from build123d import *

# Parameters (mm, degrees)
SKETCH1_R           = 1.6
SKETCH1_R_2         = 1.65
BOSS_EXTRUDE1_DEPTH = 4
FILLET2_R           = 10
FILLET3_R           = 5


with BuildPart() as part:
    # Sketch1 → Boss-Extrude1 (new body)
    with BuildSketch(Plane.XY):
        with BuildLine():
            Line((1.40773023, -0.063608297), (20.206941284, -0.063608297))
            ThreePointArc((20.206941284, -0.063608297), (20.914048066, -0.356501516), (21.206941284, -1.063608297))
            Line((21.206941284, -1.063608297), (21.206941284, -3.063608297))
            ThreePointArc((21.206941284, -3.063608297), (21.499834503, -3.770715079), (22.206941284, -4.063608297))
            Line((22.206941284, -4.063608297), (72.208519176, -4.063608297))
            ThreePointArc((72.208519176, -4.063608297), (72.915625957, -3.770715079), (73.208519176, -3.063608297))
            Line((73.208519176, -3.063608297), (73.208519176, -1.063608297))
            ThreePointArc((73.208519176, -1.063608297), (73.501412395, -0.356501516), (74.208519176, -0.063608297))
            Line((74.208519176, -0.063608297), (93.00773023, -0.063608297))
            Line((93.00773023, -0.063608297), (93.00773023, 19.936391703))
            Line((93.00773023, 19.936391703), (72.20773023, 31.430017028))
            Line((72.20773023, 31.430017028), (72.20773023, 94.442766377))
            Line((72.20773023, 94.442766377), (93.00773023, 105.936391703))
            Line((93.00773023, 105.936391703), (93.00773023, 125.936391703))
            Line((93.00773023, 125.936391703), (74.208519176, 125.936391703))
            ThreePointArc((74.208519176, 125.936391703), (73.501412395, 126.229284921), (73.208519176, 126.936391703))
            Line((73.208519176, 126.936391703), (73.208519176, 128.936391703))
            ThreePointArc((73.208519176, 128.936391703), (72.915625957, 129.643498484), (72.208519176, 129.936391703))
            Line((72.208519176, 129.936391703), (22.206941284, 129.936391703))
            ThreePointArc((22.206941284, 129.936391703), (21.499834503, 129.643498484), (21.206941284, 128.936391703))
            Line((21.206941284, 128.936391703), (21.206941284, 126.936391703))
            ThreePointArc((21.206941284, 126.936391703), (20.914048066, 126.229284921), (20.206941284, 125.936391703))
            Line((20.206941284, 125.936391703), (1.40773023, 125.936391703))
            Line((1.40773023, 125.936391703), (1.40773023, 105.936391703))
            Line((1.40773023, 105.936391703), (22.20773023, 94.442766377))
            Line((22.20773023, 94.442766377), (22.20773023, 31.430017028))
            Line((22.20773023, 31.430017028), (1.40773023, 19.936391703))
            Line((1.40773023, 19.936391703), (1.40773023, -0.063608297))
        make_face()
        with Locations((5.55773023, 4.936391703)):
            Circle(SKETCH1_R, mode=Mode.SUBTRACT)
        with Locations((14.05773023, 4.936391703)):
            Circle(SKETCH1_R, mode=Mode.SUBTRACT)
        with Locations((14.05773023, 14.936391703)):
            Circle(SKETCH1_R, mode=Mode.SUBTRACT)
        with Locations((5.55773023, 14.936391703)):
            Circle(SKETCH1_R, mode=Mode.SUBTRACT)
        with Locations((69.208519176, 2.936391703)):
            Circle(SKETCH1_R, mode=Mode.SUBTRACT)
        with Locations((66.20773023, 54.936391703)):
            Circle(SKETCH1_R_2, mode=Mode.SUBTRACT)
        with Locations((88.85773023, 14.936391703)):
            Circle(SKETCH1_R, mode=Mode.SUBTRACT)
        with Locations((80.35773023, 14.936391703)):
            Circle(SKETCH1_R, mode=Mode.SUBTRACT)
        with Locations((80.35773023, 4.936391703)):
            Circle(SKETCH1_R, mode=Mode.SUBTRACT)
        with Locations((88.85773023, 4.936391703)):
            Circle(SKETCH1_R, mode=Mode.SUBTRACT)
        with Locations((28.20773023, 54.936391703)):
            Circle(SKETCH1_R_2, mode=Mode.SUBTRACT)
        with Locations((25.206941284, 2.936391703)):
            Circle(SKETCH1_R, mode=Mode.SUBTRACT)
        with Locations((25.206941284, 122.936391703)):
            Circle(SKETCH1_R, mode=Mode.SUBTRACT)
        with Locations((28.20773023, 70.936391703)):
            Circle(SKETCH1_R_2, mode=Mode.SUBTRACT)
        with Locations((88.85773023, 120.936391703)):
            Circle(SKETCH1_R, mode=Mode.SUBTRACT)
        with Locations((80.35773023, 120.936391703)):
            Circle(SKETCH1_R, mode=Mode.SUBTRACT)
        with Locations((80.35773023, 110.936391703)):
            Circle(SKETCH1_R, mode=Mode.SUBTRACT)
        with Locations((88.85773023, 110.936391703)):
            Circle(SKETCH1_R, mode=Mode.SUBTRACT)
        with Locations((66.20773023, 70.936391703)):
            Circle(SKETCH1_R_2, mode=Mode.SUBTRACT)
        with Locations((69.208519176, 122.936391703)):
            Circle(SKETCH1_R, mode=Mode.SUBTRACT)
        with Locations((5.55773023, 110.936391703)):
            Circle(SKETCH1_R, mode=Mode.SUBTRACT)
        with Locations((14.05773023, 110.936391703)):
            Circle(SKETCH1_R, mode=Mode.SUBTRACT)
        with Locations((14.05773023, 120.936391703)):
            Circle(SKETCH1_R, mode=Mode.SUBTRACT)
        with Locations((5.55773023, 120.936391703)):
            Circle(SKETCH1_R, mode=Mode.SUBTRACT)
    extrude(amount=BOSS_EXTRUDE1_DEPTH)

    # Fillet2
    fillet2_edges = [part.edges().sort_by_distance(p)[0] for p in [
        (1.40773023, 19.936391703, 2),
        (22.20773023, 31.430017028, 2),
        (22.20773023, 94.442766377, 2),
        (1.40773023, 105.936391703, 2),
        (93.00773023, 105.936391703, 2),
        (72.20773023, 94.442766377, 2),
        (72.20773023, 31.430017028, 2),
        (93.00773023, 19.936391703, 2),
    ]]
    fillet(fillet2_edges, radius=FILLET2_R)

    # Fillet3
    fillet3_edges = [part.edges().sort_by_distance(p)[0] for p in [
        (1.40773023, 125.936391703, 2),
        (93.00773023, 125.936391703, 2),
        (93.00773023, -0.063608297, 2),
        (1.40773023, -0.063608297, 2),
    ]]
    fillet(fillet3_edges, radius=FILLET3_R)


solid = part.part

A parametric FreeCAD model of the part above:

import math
import FreeCAD as App
import Part
import Sketcher

V = App.Vector
Q = App.Units.Quantity


def edges_at(feature, points):
    """Names of the edges that pass closest to the given points."""
    edges = feature.Shape.Edges
    near = lambda p: min(range(len(edges)), key=lambda i: edges[i].distToShape(Part.Vertex(*p))[0])
    return sorted({f"Edge{near(p) + 1}" for p in points})

doc = App.newDocument("Part")
body = doc.addObject("PartDesign::Body", "Body")

sketch1 = doc.addObject("Sketcher::SketchObject", "Sketch")
body.addObject(sketch1)
sketch1.AttachmentSupport = (doc.XY_Plane, [""])
sketch1.MapMode = "FlatFace"
sketch1.addGeometry(Part.LineSegment(V(1.4, -0.1, 0), V(20.2, -0.1, 0)), False)
sketch1.addGeometry(Part.ArcOfCircle(Part.Circle(V(20.2, -1.1, 0), V(0, 0, 1), 1), math.radians(0), math.radians(90)), False)
sketch1.addGeometry(Part.LineSegment(V(21.2, -1.1, 0), V(21.2, -3.1, 0)), False)
sketch1.addGeometry(Part.ArcOfCircle(Part.Circle(V(22.2, -3.1, 0), V(0, 0, 1), 1), math.radians(180), math.radians(270)), False)
sketch1.addGeometry(Part.LineSegment(V(22.2, -4.1, 0), V(72.2, -4.1, 0)), False)
sketch1.addGeometry(Part.ArcOfCircle(Part.Circle(V(72.2, -3.1, 0), V(0, 0, 1), 1), math.radians(-90), math.radians(0)), False)
sketch1.addGeometry(Part.LineSegment(V(73.2, -3.1, 0), V(73.2, -1.1, 0)), False)
sketch1.addGeometry(Part.ArcOfCircle(Part.Circle(V(74.2, -1.1, 0), V(0, 0, 1), 1), math.radians(90), math.radians(180)), False)
sketch1.addGeometry(Part.LineSegment(V(74.2, -0.1, 0), V(93, -0.1, 0)), False)
sketch1.addGeometry(Part.LineSegment(V(93, -0.1, 0), V(93, 19.9, 0)), False)
sketch1.addGeometry(Part.LineSegment(V(93, 19.9, 0), V(72.2, 31.4, 0)), False)
sketch1.addGeometry(Part.LineSegment(V(72.2, 31.4, 0), V(72.2, 94.4, 0)), False)
sketch1.addGeometry(Part.LineSegment(V(72.2, 94.4, 0), V(93, 105.9, 0)), False)
sketch1.addGeometry(Part.LineSegment(V(93, 105.9, 0), V(93, 125.9, 0)), False)
sketch1.addGeometry(Part.LineSegment(V(93, 125.9, 0), V(74.2, 125.9, 0)), False)
sketch1.addGeometry(Part.ArcOfCircle(Part.Circle(V(74.2, 126.9, 0), V(0, 0, 1), 1), math.radians(180), math.radians(270)), False)
sketch1.addGeometry(Part.LineSegment(V(73.2, 126.9, 0), V(73.2, 128.9, 0)), False)
sketch1.addGeometry(Part.ArcOfCircle(Part.Circle(V(72.2, 128.9, 0), V(0, 0, 1), 1), math.radians(0), math.radians(90)), False)
sketch1.addGeometry(Part.LineSegment(V(72.2, 129.9, 0), V(22.2, 129.9, 0)), False)
sketch1.addGeometry(Part.ArcOfCircle(Part.Circle(V(22.2, 128.9, 0), V(0, 0, 1), 1), math.radians(90), math.radians(180)), False)
sketch1.addGeometry(Part.LineSegment(V(21.2, 128.9, 0), V(21.2, 126.9, 0)), False)
sketch1.addGeometry(Part.ArcOfCircle(Part.Circle(V(20.2, 126.9, 0), V(0, 0, 1), 1), math.radians(-90), math.radians(0)), False)
sketch1.addGeometry(Part.LineSegment(V(20.2, 125.9, 0), V(1.4, 125.9, 0)), False)
sketch1.addGeometry(Part.LineSegment(V(1.4, 125.9, 0), V(1.4, 105.9, 0)), False)
sketch1.addGeometry(Part.LineSegment(V(1.4, 105.9, 0), V(22.2, 94.4, 0)), False)
sketch1.addGeometry(Part.LineSegment(V(22.2, 94.4, 0), V(22.2, 31.4, 0)), False)
sketch1.addGeometry(Part.LineSegment(V(22.2, 31.4, 0), V(1.4, 19.9, 0)), False)
sketch1.addGeometry(Part.LineSegment(V(1.4, 19.9, 0), V(1.4, -0.1, 0)), False)
sketch1.addGeometry(Part.Circle(V(5.6, 4.9, 0), V(0, 0, 1), 1.6), False)
sketch1.addGeometry(Part.Circle(V(14.1, 4.9, 0), V(0, 0, 1), 1.6), False)
sketch1.addGeometry(Part.Circle(V(5.6, 14.9, 0), V(0, 0, 1), 1.6), False)
sketch1.addGeometry(Part.Circle(V(14.1, 14.9, 0), V(0, 0, 1), 1.6), False)
sketch1.addGeometry(Part.Circle(V(25.2, 2.9, 0), V(0, 0, 1), 1.6), False)
sketch1.addGeometry(Part.Circle(V(28.2, 54.9, 0), V(0, 0, 1), 1.6), False)
sketch1.addGeometry(Part.Circle(V(69.2, 2.9, 0), V(0, 0, 1), 1.6), False)
sketch1.addGeometry(Part.Circle(V(80.4, 4.9, 0), V(0, 0, 1), 1.6), False)
sketch1.addGeometry(Part.Circle(V(88.9, 4.9, 0), V(0, 0, 1), 1.6), False)
sketch1.addGeometry(Part.Circle(V(80.4, 14.9, 0), V(0, 0, 1), 1.6), False)
sketch1.addGeometry(Part.Circle(V(88.9, 14.9, 0), V(0, 0, 1), 1.6), False)
sketch1.addGeometry(Part.Circle(V(66.2, 54.9, 0), V(0, 0, 1), 1.6), False)
sketch1.addGeometry(Part.Circle(V(28.2, 70.9, 0), V(0, 0, 1), 1.6), False)
sketch1.addGeometry(Part.Circle(V(5.6, 110.9, 0), V(0, 0, 1), 1.6), False)
sketch1.addGeometry(Part.Circle(V(14.1, 110.9, 0), V(0, 0, 1), 1.6), False)
sketch1.addGeometry(Part.Circle(V(5.6, 120.9, 0), V(0, 0, 1), 1.6), False)
sketch1.addGeometry(Part.Circle(V(14.1, 120.9, 0), V(0, 0, 1), 1.6), False)
sketch1.addGeometry(Part.Circle(V(25.2, 122.9, 0), V(0, 0, 1), 1.6), False)
sketch1.addGeometry(Part.Circle(V(66.2, 70.9, 0), V(0, 0, 1), 1.6), False)
sketch1.addGeometry(Part.Circle(V(69.2, 122.9, 0), V(0, 0, 1), 1.6), False)
sketch1.addGeometry(Part.Circle(V(80.4, 110.9, 0), V(0, 0, 1), 1.6), False)
sketch1.addGeometry(Part.Circle(V(88.9, 110.9, 0), V(0, 0, 1), 1.6), False)
sketch1.addGeometry(Part.Circle(V(80.4, 120.9, 0), V(0, 0, 1), 1.6), False)
sketch1.addGeometry(Part.Circle(V(88.9, 120.9, 0), V(0, 0, 1), 1.6), False)
sketch1.addConstraint(Sketcher.Constraint("Tangent", 0, 2, 1, 2))
sketch1.addConstraint(Sketcher.Constraint("Tangent", 1, 1, 2, 1))
sketch1.addConstraint(Sketcher.Constraint("Tangent", 2, 2, 3, 1))
sketch1.addConstraint(Sketcher.Constraint("Tangent", 3, 2, 4, 1))
sketch1.addConstraint(Sketcher.Constraint("Tangent", 4, 2, 5, 1))
sketch1.addConstraint(Sketcher.Constraint("Tangent", 5, 2, 6, 1))
sketch1.addConstraint(Sketcher.Constraint("Tangent", 6, 2, 7, 2))
sketch1.addConstraint(Sketcher.Constraint("Tangent", 7, 1, 8, 1))
sketch1.addConstraint(Sketcher.Constraint("Coincident", 8, 2, 9, 1))
sketch1.addConstraint(Sketcher.Constraint("Coincident", 9, 2, 10, 1))
sketch1.addConstraint(Sketcher.Constraint("Coincident", 10, 2, 11, 1))
sketch1.addConstraint(Sketcher.Constraint("Coincident", 11, 2, 12, 1))
sketch1.addConstraint(Sketcher.Constraint("Coincident", 12, 2, 13, 1))
sketch1.addConstraint(Sketcher.Constraint("Coincident", 13, 2, 14, 1))
sketch1.addConstraint(Sketcher.Constraint("Tangent", 14, 2, 15, 2))
sketch1.addConstraint(Sketcher.Constraint("Tangent", 15, 1, 16, 1))
sketch1.addConstraint(Sketcher.Constraint("Tangent", 16, 2, 17, 1))
sketch1.addConstraint(Sketcher.Constraint("Tangent", 17, 2, 18, 1))
sketch1.addConstraint(Sketcher.Constraint("Tangent", 18, 2, 19, 1))
sketch1.addConstraint(Sketcher.Constraint("Tangent", 19, 2, 20, 1))
sketch1.addConstraint(Sketcher.Constraint("Tangent", 20, 2, 21, 2))
sketch1.addConstraint(Sketcher.Constraint("Tangent", 21, 1, 22, 1))
sketch1.addConstraint(Sketcher.Constraint("Coincident", 22, 2, 23, 1))
sketch1.addConstraint(Sketcher.Constraint("Coincident", 23, 2, 24, 1))
sketch1.addConstraint(Sketcher.Constraint("Coincident", 24, 2, 25, 1))
sketch1.addConstraint(Sketcher.Constraint("Coincident", 25, 2, 26, 1))
sketch1.addConstraint(Sketcher.Constraint("Coincident", 26, 2, 27, 1))
sketch1.addConstraint(Sketcher.Constraint("Coincident", 27, 2, 0, 1))
sketch1.addConstraint(Sketcher.Constraint("Horizontal", 0))
sketch1.addConstraint(Sketcher.Constraint("Vertical", 2))
sketch1.addConstraint(Sketcher.Constraint("Horizontal", 4))
sketch1.addConstraint(Sketcher.Constraint("Vertical", 6))
sketch1.addConstraint(Sketcher.Constraint("Horizontal", 8))
sketch1.addConstraint(Sketcher.Constraint("Vertical", 9))
sketch1.addConstraint(Sketcher.Constraint("Vertical", 11))
sketch1.addConstraint(Sketcher.Constraint("Vertical", 13))
sketch1.addConstraint(Sketcher.Constraint("Horizontal", 14))
sketch1.addConstraint(Sketcher.Constraint("Vertical", 16))
sketch1.addConstraint(Sketcher.Constraint("Horizontal", 18))
sketch1.addConstraint(Sketcher.Constraint("Vertical", 20))
sketch1.addConstraint(Sketcher.Constraint("Horizontal", 22))
sketch1.addConstraint(Sketcher.Constraint("Vertical", 23))
sketch1.addConstraint(Sketcher.Constraint("Vertical", 25))
sketch1.addConstraint(Sketcher.Constraint("Vertical", 27))
sketch1.addConstraint(Sketcher.Constraint("Equal", 1, 3))
sketch1.addConstraint(Sketcher.Constraint("Equal", 3, 5))
sketch1.addConstraint(Sketcher.Constraint("Equal", 5, 7))
sketch1.addConstraint(Sketcher.Constraint("Equal", 7, 15))
sketch1.addConstraint(Sketcher.Constraint("Equal", 15, 17))
sketch1.addConstraint(Sketcher.Constraint("Equal", 17, 19))
sketch1.addConstraint(Sketcher.Constraint("Equal", 19, 21))
sketch1.addConstraint(Sketcher.Constraint("Equal", 28, 29))
sketch1.addConstraint(Sketcher.Constraint("Equal", 29, 30))
sketch1.addConstraint(Sketcher.Constraint("Equal", 30, 31))
sketch1.addConstraint(Sketcher.Constraint("Equal", 31, 32))
sketch1.addConstraint(Sketcher.Constraint("Equal", 32, 34))
sketch1.addConstraint(Sketcher.Constraint("Equal", 34, 35))
sketch1.addConstraint(Sketcher.Constraint("Equal", 35, 36))
sketch1.addConstraint(Sketcher.Constraint("Equal", 36, 37))
sketch1.addConstraint(Sketcher.Constraint("Equal", 37, 38))
sketch1.addConstraint(Sketcher.Constraint("Equal", 33, 39))
sketch1.addConstraint(Sketcher.Constraint("Equal", 39, 40))
sketch1.addConstraint(Sketcher.Constraint("Equal", 38, 41))
sketch1.addConstraint(Sketcher.Constraint("Equal", 41, 42))
sketch1.addConstraint(Sketcher.Constraint("Equal", 42, 43))
sketch1.addConstraint(Sketcher.Constraint("Equal", 43, 44))
sketch1.addConstraint(Sketcher.Constraint("Equal", 44, 45))
sketch1.addConstraint(Sketcher.Constraint("Equal", 40, 46))
sketch1.addConstraint(Sketcher.Constraint("Equal", 45, 47))
sketch1.addConstraint(Sketcher.Constraint("Equal", 47, 48))
sketch1.addConstraint(Sketcher.Constraint("Equal", 48, 49))
sketch1.addConstraint(Sketcher.Constraint("Equal", 49, 50))
sketch1.addConstraint(Sketcher.Constraint("Equal", 50, 51))
sketch1.addConstraint(Sketcher.Constraint("Parallel", 10, 24))
sketch1.addConstraint(Sketcher.Constraint("Parallel", 12, 26))
sketch1.addConstraint(Sketcher.Constraint("Horizontal", 1, 3, 7, 3))
sketch1.addConstraint(Sketcher.Constraint("Horizontal", 15, 3, 21, 3))
sketch1.addConstraint(Sketcher.Constraint("Horizontal", 28, 3, 29, 3))
sketch1.addConstraint(Sketcher.Constraint("Horizontal", 30, 3, 31, 3))
sketch1.addConstraint(Sketcher.Constraint("Horizontal", 32, 3, 34, 3))
sketch1.addConstraint(Sketcher.Constraint("Horizontal", 29, 3, 35, 3))
sketch1.addConstraint(Sketcher.Constraint("Horizontal", 35, 3, 36, 3))
sketch1.addConstraint(Sketcher.Constraint("Horizontal", 31, 3, 37, 3))
sketch1.addConstraint(Sketcher.Constraint("Horizontal", 37, 3, 38, 3))
sketch1.addConstraint(Sketcher.Constraint("Horizontal", 33, 3, 39, 3))
sketch1.addConstraint(Sketcher.Constraint("Horizontal", 41, 3, 42, 3))
sketch1.addConstraint(Sketcher.Constraint("Horizontal", 43, 3, 44, 3))
sketch1.addConstraint(Sketcher.Constraint("Horizontal", 40, 3, 46, 3))
sketch1.addConstraint(Sketcher.Constraint("Horizontal", 45, 3, 47, 3))
sketch1.addConstraint(Sketcher.Constraint("Horizontal", 42, 3, 48, 3))
sketch1.addConstraint(Sketcher.Constraint("Horizontal", 48, 3, 49, 3))
sketch1.addConstraint(Sketcher.Constraint("Horizontal", 44, 3, 50, 3))
sketch1.addConstraint(Sketcher.Constraint("Horizontal", 50, 3, 51, 3))
sketch1.addConstraint(Sketcher.Constraint("Horizontal", 12, 2, 23, 2))
sketch1.addConstraint(Sketcher.Constraint("Horizontal", 11, 2, 24, 2))
sketch1.addConstraint(Sketcher.Constraint("Horizontal", 10, 2, 25, 2))
sketch1.addConstraint(Sketcher.Constraint("Horizontal", 9, 2, 26, 2))
sketch1.addConstraint(Sketcher.Constraint("Vertical", 7, 3, 15, 3))
sketch1.addConstraint(Sketcher.Constraint("Vertical", 3, 3, 19, 3))
sketch1.addConstraint(Sketcher.Constraint("Vertical", 28, 3, 30, 3))
sketch1.addConstraint(Sketcher.Constraint("Vertical", 29, 3, 31, 3))
sketch1.addConstraint(Sketcher.Constraint("Vertical", 35, 3, 37, 3))
sketch1.addConstraint(Sketcher.Constraint("Vertical", 36, 3, 38, 3))
sketch1.addConstraint(Sketcher.Constraint("Vertical", 33, 3, 40, 3))
sketch1.addConstraint(Sketcher.Constraint("Vertical", 30, 3, 41, 3))
sketch1.addConstraint(Sketcher.Constraint("Vertical", 31, 3, 42, 3))
sketch1.addConstraint(Sketcher.Constraint("Vertical", 41, 3, 43, 3))
sketch1.addConstraint(Sketcher.Constraint("Vertical", 42, 3, 44, 3))
sketch1.addConstraint(Sketcher.Constraint("Vertical", 32, 3, 45, 3))
sketch1.addConstraint(Sketcher.Constraint("Vertical", 39, 3, 46, 3))
sketch1.addConstraint(Sketcher.Constraint("Vertical", 34, 3, 47, 3))
sketch1.addConstraint(Sketcher.Constraint("Vertical", 37, 3, 48, 3))
sketch1.addConstraint(Sketcher.Constraint("Vertical", 38, 3, 49, 3))
sketch1.addConstraint(Sketcher.Constraint("Vertical", 48, 3, 50, 3))
sketch1.addConstraint(Sketcher.Constraint("Vertical", 49, 3, 51, 3))
sketch1.addConstraint(Sketcher.Constraint("Vertical", 9, 2, 12, 2))
sketch1.addConstraint(Sketcher.Constraint("Vertical", 23, 2, 26, 2))
sketch1.addConstraint(Sketcher.Constraint("Equal", 0, 8))
sketch1.addConstraint(Sketcher.Constraint("Equal", 9, 13))
sketch1.addConstraint(Sketcher.Constraint("Equal", 6, 16))
sketch1.addConstraint(Sketcher.Constraint("Radius", 1, Q("1 mm")))
sketch1.addConstraint(Sketcher.Constraint("Diameter", 28, Q("3.2 mm")))
sketch1.addConstraint(Sketcher.Constraint("Diameter", 33, Q("3.3 mm")))
sketch1.addConstraint(Sketcher.Constraint("DistanceY", 2, 2, 2, 1, Q("2 mm")))
sketch1.addConstraint(Sketcher.Constraint("DistanceY", 9, 1, 9, 2, Q("20 mm")))
sketch1.addConstraint(Sketcher.Constraint("DistanceY", 7, 3, 15, 3, Q("128 mm")))
sketch1.addConstraint(Sketcher.Constraint("DistanceY", 1, 3, 28, 3, Q("6 mm")))
sketch1.addConstraint(Sketcher.Constraint("DistanceY", 28, 3, 30, 3, Q("10 mm")))
sketch1.addConstraint(Sketcher.Constraint("DistanceX", 1, 3, 32, 3, Q("5 mm")))
sketch1.addConstraint(Sketcher.Constraint("DistanceY", 1, 3, 32, 3, Q("4 mm")))
sketch1.addConstraint(Sketcher.Constraint("DistanceY", 31, 3, 33, 3, Q("40 mm")))
sketch1.addConstraint(Sketcher.Constraint("DistanceX", 34, 3, 7, 3, Q("5 mm")))
sketch1.addConstraint(Sketcher.Constraint("DistanceX", 33, 3, 39, 3, Q("38 mm")))
sketch1.addConstraint(Sketcher.Constraint("DistanceY", 33, 3, 40, 3, Q("16 mm")))
sketch1.addConstraint(Sketcher.Constraint("DistanceY", 41, 3, 21, 3, Q("16 mm")))
sketch1.addConstraint(Sketcher.Constraint("DistanceY", 41, 3, 43, 3, Q("10 mm")))
sketch1.addConstraint(Sketcher.Constraint("DistanceY", 45, 3, 21, 3, Q("4 mm")))
sketch1.addConstraint(Sketcher.Constraint("DistanceX", 39, 3, 10, 2, Q("6 mm")))
sketch1.addConstraint(Sketcher.Constraint("DistanceX", 24, 2, 40, 3, Q("6 mm")))
sketch1.addConstraint(Sketcher.Constraint("DistanceX", 28, 3, 29, 3, Q("8.5 mm")))
sketch1.addConstraint(Sketcher.Constraint("DistanceX", 35, 3, 36, 3, Q("8.5 mm")))
sketch1.addConstraint(Sketcher.Constraint("DistanceX", 10, 2, 9, 2, Q("20.8 mm")))
sketch1.addConstraint(Sketcher.Constraint("DistanceX", 31, 3, 33, 3, Q("14.15 mm")))
sketch1.addConstraint(Sketcher.Constraint("DistanceX", 39, 3, 37, 3, Q("14.15 mm")))
sketch1.addConstraint(Sketcher.Constraint("DistanceX", 0, 1, 0, 2, Q("18.799211 mm")))
sketch1.addConstraint(Sketcher.Constraint("DistanceY", 11, 1, 11, 2, Q("63.012749 mm")))
sketch1.addConstraint(Sketcher.Constraint("DistanceX", -1, 1, 1, 3, Q("20.206941 mm")))
sketch1.addConstraint(Sketcher.Constraint("DistanceY", 1, 3, -1, 1, Q("1.063608 mm")))
pad1 = doc.addObject("PartDesign::Pad", "Pad")
body.addObject(pad1)
pad1.Profile = sketch1
pad1.Length = 4
doc.recompute()

fillet = doc.addObject("PartDesign::Fillet", "Fillet")
body.addObject(fillet)
fillet.Base = (pad1, edges_at(pad1, [
    (1.408, 19.936, 2),
    (22.208, 31.43, 2),
    (22.208, 94.443, 2),
    (1.408, 105.936, 2),
    (93.008, 105.936, 2),
    (72.208, 94.443, 2),
    (72.208, 31.43, 2),
    (93.008, 19.936, 2),
]))
fillet.Radius = 10
doc.recompute()

fillet2 = doc.addObject("PartDesign::Fillet", "Fillet001")
body.addObject(fillet2)
fillet2.Base = (fillet, edges_at(fillet, [
    (1.408, 125.936, 2),
    (93.008, 125.936, 2),
    (93.008, -0.064, 2),
    (1.408, -0.064, 2),
]))
fillet2.Radius = 5

doc.recompute()
